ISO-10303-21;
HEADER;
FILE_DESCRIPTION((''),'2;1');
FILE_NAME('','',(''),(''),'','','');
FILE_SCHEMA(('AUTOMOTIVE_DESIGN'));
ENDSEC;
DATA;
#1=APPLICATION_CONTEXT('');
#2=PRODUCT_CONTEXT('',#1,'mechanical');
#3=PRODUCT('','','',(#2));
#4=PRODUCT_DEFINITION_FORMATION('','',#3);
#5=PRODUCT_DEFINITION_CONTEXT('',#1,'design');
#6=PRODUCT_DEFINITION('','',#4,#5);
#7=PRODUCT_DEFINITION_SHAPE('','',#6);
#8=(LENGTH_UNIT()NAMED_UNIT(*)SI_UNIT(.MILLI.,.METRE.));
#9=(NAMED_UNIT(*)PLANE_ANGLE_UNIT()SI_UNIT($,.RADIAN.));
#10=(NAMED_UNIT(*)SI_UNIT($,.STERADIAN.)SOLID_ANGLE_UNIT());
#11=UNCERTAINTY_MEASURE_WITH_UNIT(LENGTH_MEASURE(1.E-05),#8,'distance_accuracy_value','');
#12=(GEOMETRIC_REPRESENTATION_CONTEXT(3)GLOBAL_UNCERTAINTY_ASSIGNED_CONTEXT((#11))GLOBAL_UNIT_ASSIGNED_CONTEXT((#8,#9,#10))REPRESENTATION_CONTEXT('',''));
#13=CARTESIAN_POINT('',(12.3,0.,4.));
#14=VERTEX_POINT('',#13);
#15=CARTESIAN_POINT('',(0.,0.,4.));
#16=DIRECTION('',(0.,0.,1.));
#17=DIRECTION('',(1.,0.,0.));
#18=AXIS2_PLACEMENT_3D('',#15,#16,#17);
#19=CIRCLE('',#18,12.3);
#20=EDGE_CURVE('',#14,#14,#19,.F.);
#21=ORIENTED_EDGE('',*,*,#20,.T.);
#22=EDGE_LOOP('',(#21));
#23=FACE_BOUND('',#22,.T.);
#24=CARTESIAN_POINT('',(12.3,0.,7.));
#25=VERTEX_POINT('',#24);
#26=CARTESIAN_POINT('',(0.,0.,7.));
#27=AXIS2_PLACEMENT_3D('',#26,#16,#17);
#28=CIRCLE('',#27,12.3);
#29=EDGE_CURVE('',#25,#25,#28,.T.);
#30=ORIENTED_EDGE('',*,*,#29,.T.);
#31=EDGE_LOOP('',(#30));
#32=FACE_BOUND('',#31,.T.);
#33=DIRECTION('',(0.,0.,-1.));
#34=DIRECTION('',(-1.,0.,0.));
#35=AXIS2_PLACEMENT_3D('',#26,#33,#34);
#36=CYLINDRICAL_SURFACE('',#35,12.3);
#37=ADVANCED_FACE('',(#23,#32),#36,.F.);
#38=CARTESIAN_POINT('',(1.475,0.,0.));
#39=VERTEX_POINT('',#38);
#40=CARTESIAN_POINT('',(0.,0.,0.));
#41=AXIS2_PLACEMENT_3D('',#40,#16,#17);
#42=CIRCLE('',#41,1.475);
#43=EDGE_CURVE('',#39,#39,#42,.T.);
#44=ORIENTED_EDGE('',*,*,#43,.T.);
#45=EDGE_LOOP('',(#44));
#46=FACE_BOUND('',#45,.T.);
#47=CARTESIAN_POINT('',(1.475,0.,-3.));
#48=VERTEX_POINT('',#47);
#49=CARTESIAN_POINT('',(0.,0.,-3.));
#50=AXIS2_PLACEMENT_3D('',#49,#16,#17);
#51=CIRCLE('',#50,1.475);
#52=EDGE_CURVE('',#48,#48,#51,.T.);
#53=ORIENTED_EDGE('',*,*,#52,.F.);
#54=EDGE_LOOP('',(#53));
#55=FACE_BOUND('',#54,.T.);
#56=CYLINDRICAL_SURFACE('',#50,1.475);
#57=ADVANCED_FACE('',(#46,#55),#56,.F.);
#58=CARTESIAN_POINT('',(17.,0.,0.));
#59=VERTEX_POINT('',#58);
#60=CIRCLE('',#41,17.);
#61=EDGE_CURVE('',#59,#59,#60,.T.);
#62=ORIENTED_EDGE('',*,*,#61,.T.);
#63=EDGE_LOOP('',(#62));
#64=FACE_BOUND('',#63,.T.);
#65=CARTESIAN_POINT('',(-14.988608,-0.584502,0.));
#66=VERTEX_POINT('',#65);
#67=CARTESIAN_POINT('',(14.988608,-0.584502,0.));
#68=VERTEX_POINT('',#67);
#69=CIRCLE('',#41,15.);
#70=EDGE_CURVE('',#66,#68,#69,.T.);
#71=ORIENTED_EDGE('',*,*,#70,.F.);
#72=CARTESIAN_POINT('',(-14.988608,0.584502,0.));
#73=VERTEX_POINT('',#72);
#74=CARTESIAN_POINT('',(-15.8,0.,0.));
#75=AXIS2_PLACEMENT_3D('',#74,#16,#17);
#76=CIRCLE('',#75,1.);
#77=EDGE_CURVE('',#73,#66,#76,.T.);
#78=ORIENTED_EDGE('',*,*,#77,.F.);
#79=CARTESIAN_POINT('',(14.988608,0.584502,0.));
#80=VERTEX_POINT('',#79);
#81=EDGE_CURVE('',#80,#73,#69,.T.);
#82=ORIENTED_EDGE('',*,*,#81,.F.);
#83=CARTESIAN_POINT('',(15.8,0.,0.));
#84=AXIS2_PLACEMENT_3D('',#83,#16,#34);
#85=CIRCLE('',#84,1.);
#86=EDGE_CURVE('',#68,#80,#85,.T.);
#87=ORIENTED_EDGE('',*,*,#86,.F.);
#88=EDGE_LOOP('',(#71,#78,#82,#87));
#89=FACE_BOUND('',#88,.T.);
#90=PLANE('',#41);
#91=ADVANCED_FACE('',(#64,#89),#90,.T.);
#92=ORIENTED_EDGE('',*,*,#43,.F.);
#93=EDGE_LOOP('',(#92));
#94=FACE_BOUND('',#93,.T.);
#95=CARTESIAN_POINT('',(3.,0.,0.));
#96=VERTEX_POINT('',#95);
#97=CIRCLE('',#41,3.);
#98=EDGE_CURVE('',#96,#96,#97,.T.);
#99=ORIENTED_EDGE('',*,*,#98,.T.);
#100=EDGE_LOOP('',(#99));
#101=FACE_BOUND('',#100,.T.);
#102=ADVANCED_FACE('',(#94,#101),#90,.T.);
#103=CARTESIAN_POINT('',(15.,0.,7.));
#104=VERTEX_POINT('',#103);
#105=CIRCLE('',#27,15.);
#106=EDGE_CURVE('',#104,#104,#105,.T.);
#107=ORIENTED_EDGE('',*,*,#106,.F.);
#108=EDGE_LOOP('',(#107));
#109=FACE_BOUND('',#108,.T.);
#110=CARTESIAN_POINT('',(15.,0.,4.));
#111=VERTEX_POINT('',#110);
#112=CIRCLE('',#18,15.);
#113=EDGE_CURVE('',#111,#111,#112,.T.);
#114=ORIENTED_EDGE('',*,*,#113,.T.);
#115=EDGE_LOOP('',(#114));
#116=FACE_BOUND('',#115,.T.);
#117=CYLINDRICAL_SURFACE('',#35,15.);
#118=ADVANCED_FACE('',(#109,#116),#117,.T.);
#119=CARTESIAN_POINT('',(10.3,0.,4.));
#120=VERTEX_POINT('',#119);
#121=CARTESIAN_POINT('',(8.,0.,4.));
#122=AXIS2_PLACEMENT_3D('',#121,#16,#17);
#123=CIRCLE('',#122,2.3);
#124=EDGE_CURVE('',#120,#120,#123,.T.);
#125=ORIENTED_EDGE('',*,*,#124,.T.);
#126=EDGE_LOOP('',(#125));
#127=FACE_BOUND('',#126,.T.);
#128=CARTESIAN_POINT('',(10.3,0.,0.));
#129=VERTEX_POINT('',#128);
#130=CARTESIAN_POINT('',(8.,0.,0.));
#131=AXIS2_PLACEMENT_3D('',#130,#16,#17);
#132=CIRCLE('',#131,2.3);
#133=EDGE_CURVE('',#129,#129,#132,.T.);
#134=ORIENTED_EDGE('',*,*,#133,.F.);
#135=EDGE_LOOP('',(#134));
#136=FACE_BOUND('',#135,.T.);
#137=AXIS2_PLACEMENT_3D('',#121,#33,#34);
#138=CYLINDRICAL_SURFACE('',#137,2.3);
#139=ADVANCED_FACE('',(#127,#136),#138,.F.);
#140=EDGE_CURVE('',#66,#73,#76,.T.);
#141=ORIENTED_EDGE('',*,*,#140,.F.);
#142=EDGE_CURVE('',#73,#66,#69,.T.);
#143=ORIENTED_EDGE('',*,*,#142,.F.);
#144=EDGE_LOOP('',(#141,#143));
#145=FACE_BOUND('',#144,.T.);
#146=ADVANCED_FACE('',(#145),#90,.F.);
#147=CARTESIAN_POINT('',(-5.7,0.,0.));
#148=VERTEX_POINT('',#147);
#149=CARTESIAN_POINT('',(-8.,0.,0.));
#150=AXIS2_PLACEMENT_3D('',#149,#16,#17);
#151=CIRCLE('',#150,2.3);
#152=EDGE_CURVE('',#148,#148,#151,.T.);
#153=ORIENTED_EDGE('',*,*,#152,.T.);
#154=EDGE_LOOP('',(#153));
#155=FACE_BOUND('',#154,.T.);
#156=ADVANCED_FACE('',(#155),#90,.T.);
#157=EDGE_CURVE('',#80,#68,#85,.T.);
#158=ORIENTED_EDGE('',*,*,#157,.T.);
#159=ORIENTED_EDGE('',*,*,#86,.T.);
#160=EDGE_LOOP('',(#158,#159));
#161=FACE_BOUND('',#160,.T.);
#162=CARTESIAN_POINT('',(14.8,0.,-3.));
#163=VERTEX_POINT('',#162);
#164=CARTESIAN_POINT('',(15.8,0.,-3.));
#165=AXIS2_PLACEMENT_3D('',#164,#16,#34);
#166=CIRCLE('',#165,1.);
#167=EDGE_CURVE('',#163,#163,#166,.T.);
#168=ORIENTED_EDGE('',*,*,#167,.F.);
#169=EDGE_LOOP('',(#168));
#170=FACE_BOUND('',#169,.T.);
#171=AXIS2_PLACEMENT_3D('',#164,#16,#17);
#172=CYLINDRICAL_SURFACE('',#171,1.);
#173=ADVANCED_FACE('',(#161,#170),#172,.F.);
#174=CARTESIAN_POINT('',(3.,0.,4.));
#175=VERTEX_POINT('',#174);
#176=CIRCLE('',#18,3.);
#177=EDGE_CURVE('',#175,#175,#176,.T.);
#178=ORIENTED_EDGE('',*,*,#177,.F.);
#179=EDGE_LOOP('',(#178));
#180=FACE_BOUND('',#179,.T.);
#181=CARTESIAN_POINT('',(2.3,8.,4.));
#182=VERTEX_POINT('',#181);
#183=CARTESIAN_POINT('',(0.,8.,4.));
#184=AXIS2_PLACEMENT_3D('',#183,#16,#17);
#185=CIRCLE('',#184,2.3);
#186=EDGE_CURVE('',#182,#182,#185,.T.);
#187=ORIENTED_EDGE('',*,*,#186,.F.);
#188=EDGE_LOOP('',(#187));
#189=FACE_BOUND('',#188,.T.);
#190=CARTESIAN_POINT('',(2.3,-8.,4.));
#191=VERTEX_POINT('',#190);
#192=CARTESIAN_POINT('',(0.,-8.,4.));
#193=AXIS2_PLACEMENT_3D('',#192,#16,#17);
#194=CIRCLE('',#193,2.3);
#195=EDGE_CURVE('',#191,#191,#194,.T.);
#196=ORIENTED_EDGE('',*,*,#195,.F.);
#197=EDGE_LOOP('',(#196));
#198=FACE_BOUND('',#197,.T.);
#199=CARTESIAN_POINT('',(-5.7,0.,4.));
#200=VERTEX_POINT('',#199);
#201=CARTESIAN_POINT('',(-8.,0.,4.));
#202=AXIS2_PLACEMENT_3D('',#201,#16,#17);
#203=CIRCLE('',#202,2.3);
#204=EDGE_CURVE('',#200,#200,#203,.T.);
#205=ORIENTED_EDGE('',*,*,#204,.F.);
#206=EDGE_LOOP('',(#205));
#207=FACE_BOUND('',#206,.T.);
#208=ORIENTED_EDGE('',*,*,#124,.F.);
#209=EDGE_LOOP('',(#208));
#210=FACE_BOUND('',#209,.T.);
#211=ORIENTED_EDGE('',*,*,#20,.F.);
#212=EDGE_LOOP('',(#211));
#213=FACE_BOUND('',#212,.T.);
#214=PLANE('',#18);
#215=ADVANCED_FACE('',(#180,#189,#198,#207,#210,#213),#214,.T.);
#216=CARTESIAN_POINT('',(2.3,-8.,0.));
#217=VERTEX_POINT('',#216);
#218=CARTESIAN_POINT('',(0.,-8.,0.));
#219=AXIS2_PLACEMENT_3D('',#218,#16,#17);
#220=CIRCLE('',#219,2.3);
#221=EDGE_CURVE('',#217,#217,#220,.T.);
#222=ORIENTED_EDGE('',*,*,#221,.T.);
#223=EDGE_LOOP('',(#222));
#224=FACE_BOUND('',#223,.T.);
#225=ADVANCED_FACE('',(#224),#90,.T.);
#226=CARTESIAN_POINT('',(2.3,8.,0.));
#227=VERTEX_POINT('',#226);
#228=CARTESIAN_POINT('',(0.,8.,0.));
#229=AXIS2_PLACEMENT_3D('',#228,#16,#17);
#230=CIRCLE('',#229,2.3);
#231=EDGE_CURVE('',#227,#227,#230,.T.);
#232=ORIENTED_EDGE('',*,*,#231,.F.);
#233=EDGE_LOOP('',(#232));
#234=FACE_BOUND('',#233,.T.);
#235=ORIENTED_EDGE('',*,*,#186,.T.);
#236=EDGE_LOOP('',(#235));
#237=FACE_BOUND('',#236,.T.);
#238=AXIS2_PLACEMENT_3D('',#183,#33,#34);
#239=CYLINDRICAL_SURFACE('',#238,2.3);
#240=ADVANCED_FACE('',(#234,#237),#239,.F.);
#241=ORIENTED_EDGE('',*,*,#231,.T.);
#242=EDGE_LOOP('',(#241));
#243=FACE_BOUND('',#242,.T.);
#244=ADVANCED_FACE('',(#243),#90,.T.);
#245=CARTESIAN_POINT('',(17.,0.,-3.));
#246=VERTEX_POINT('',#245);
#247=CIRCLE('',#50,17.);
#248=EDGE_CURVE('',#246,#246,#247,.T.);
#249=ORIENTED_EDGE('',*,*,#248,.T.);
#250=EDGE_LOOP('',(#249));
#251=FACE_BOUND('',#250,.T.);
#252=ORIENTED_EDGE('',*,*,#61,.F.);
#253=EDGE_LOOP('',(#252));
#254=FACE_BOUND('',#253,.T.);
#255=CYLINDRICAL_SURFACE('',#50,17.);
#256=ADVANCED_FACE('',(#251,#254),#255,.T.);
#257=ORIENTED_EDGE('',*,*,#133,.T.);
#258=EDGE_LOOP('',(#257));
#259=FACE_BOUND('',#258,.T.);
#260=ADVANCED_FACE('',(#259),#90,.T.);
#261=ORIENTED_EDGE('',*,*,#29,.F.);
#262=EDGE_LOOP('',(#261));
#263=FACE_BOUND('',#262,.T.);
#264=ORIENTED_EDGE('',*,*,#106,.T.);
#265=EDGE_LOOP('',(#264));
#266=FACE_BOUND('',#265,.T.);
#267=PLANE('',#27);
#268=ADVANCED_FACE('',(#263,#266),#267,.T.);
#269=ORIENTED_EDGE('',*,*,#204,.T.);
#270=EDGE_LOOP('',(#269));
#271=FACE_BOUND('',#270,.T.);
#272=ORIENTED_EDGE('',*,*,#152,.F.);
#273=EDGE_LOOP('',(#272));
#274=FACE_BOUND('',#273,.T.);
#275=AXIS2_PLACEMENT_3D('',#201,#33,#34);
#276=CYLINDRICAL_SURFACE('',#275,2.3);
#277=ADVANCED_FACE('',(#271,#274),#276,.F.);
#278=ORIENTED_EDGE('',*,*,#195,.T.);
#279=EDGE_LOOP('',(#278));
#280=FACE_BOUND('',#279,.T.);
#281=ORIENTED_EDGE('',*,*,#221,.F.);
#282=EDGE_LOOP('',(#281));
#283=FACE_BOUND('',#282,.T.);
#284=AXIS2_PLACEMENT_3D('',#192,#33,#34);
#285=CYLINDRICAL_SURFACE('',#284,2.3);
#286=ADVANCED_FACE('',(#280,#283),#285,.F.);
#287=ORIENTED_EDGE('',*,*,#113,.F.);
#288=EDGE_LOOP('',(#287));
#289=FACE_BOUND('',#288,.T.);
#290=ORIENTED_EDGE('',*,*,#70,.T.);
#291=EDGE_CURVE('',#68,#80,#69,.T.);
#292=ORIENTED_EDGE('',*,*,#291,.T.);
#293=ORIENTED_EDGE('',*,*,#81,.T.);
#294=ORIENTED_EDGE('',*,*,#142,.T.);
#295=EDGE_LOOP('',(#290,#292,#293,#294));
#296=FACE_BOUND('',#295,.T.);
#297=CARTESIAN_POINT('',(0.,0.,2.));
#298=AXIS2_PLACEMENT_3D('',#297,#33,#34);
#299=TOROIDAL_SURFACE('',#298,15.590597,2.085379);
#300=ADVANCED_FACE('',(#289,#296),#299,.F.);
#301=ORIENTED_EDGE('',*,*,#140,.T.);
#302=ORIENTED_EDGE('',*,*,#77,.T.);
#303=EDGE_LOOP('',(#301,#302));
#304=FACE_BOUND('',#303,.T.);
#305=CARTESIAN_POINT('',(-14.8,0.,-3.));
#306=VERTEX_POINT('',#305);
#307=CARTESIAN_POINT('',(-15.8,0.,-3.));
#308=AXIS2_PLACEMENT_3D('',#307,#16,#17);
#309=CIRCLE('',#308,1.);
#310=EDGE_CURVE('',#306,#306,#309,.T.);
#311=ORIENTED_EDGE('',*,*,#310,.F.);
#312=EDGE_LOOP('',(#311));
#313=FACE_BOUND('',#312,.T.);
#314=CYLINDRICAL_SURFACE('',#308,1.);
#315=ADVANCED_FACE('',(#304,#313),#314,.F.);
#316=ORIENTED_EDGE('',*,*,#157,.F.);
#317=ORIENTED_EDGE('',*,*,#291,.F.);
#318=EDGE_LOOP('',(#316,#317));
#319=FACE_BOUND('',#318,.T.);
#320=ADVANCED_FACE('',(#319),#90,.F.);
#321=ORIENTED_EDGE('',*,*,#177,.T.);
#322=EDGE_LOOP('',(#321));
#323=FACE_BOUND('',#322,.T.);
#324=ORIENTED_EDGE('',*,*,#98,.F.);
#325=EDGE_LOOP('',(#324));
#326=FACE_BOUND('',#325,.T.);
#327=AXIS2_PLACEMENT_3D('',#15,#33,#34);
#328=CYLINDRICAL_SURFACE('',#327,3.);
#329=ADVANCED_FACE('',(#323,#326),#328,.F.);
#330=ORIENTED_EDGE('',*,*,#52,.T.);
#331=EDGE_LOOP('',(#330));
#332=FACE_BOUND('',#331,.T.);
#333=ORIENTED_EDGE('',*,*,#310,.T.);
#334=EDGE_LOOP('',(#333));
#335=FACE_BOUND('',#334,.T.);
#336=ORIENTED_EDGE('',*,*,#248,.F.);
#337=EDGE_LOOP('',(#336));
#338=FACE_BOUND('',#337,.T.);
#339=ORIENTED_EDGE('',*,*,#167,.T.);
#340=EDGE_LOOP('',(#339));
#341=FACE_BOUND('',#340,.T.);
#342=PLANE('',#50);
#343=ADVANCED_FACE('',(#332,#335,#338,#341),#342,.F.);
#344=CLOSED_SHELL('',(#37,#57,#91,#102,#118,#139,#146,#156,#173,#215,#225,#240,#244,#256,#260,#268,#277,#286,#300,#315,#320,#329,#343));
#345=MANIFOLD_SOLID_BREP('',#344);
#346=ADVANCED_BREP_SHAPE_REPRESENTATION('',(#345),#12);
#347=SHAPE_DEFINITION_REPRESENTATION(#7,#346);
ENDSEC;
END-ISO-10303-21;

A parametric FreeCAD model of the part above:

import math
import FreeCAD as App
import Part
import Sketcher
from FreeCAD import Vector

doc = App.newDocument("Part")
body = doc.addObject("PartDesign::Body", "Body")

sketch1 = doc.addObject("Sketcher::SketchObject", "Sketch")
body.addObject(sketch1)
sketch1.AttachmentSupport = (doc.XY_Plane, [""])
sketch1.MapMode = "FlatFace"
sketch1.addGeometry(Part.Circle(Vector(0, 0, 0), Vector(0, 0, 1), 15), False)
sketch1.addGeometry(Part.Circle(Vector(0, -8, 0), Vector(0, 0, 1), 2.3), False)
sketch1.addGeometry(Part.Circle(Vector(-8, 0, 0), Vector(0, 0, 1), 2.3), False)
sketch1.addGeometry(Part.Circle(Vector(0, 0, 0), Vector(0, 0, 1), 3), False)
sketch1.addGeometry(Part.Circle(Vector(8, 0, 0), Vector(0, 0, 1), 2.3), False)
sketch1.addGeometry(Part.Circle(Vector(0, 8, 0), Vector(0, 0, 1), 2.3), False)
sketch1.addConstraint(Sketcher.Constraint("Coincident", 0, 3, -1, 1))
sketch1.addConstraint(Sketcher.Constraint("Coincident", 3, 3, -1, 1))
sketch1.addConstraint(Sketcher.Constraint("Equal", 1, 2))
sketch1.addConstraint(Sketcher.Constraint("Equal", 2, 4))
sketch1.addConstraint(Sketcher.Constraint("Equal", 4, 5))
sketch1.addConstraint(Sketcher.Constraint("Symmetric", 2, 3, 4, 3, -1, 1))
sketch1.addConstraint(Sketcher.Constraint("Symmetric", 1, 3, 5, 3, -1, 1))
sketch1.addConstraint(Sketcher.Constraint("PointOnObject", 1, 3, -2))
sketch1.addConstraint(Sketcher.Constraint("PointOnObject", 2, 3, -1))
sketch1.addConstraint(Sketcher.Constraint("Diameter", 0, 30.0))
sketch1.addConstraint(Sketcher.Constraint("Diameter", 3, 6.0))
sketch1.addConstraint(Sketcher.Constraint("Diameter", 1, 4.6))
sketch1.addConstraint(Sketcher.Constraint("DistanceY", 1, 3, -1, 1, 8.0))
sketch1.addConstraint(Sketcher.Constraint("DistanceX", 2, 3, -1, 1, 8.0))
pad1 = doc.addObject("PartDesign::Pad", "Pad")
body.addObject(pad1)
pad1.Profile = sketch1
pad1.Length = 4

sketch2 = doc.addObject("Sketcher::SketchObject", "Sketch001")
body.addObject(sketch2)
sketch2.AttachmentSupport = (doc.XY_Plane, [""])
sketch2.MapMode = "FlatFace"
sketch2.addGeometry(Part.Circle(Vector(0, 0, 0), Vector(0, 0, 1), 17), False)
sketch2.addGeometry(Part.Circle(Vector(-15.8, 0, 0), Vector(0, 0, 1), 1), False)
sketch2.addGeometry(Part.Circle(Vector(0, 0, 0), Vector(0, 0, 1), 1.475), False)
sketch2.addGeometry(Part.Circle(Vector(15.8, 0, 0), Vector(0, 0, 1), 1), False)
sketch2.addConstraint(Sketcher.Constraint("Coincident", 0, 3, -1, 1))
sketch2.addConstraint(Sketcher.Constraint("Coincident", 2, 3, -1, 1))
sketch2.addConstraint(Sketcher.Constraint("Equal", 1, 3))
sketch2.addConstraint(Sketcher.Constraint("Symmetric", 1, 3, 3, 3, -1, 1))
sketch2.addConstraint(Sketcher.Constraint("PointOnObject", 1, 3, -1))
sketch2.addConstraint(Sketcher.Constraint("Diameter", 0, 34.0))
sketch2.addConstraint(Sketcher.Constraint("Diameter", 1, 2.0))
sketch2.addConstraint(Sketcher.Constraint("Diameter", 2, 2.95))
sketch2.addConstraint(Sketcher.Constraint("DistanceX", 1, 3, -1, 1, 15.8))
pad2 = doc.addObject("PartDesign::Pad", "Pad001")
body.addObject(pad2)
pad2.Profile = sketch2
pad2.Length = 3
pad2.Reversed = True

sketch3 = doc.addObject("Sketcher::SketchObject", "Sketch002")
body.addObject(sketch3)
sketch3.AttachmentSupport = (doc.YZ_Plane, [""])
sketch3.MapMode = "FlatFace"
sketch3.addGeometry(Part.LineSegment(Vector(15, 0, 0), Vector(15, 4, 0)), False)
sketch3.addGeometry(Part.ArcOfCircle(Part.Circle(Vector(15.590597, 2, 0), Vector(0, 0, 1), 2.085379), math.radians(106.451778), math.radians(253.548222)), False)
sketch3.addConstraint(Sketcher.Constraint("Coincident", 0, 1, 1, 2))
sketch3.addConstraint(Sketcher.Constraint("Coincident", 1, 1, 0, 2))
sketch3.addConstraint(Sketcher.Constraint("Vertical", 0))
sketch3.addConstraint(Sketcher.Constraint("PointOnObject", 0, 1, -1))
sketch3.addConstraint(Sketcher.Constraint("DistanceY", 0, 1, 0, 2, 4.0))
sketch3.addConstraint(Sketcher.Constraint("DistanceX", -1, 1, 0, 1, 15.0))
sketch3.addConstraint(Sketcher.Constraint("Radius", 1, 2.085379))
groove = doc.addObject("PartDesign::Groove", "Groove")
body.addObject(groove)
groove.Profile = sketch3
groove.ReferenceAxis = (sketch3, ["V_Axis"])
groove.Angle = 360

sketch4 = doc.addObject("Sketcher::SketchObject", "Sketch003")
body.addObject(sketch4)
sketch4.AttachmentSupport = (doc.XY_Plane, [""])
sketch4.MapMode = "FlatFace"
sketch4.AttachmentOffset = App.Placement(Vector(0, 0, 4), App.Rotation())
sketch4.addGeometry(Part.Circle(Vector(0, 0, 0), Vector(0, 0, 1), 15), False)
sketch4.addGeometry(Part.Circle(Vector(0, 0, 0), Vector(0, 0, 1), 12.3), False)
sketch4.addConstraint(Sketcher.Constraint("Coincident", 0, 3, -1, 1))
sketch4.addConstraint(Sketcher.Constraint("Coincident", 1, 3, -1, 1))
sketch4.addConstraint(Sketcher.Constraint("Diameter", 0, 30.0))
sketch4.addConstraint(Sketcher.Constraint("Diameter", 1, 24.6))
pad3 = doc.addObject("PartDesign::Pad", "Pad002")
body.addObject(pad3)
pad3.Profile = sketch4
pad3.Length = 3

doc.recompute()
